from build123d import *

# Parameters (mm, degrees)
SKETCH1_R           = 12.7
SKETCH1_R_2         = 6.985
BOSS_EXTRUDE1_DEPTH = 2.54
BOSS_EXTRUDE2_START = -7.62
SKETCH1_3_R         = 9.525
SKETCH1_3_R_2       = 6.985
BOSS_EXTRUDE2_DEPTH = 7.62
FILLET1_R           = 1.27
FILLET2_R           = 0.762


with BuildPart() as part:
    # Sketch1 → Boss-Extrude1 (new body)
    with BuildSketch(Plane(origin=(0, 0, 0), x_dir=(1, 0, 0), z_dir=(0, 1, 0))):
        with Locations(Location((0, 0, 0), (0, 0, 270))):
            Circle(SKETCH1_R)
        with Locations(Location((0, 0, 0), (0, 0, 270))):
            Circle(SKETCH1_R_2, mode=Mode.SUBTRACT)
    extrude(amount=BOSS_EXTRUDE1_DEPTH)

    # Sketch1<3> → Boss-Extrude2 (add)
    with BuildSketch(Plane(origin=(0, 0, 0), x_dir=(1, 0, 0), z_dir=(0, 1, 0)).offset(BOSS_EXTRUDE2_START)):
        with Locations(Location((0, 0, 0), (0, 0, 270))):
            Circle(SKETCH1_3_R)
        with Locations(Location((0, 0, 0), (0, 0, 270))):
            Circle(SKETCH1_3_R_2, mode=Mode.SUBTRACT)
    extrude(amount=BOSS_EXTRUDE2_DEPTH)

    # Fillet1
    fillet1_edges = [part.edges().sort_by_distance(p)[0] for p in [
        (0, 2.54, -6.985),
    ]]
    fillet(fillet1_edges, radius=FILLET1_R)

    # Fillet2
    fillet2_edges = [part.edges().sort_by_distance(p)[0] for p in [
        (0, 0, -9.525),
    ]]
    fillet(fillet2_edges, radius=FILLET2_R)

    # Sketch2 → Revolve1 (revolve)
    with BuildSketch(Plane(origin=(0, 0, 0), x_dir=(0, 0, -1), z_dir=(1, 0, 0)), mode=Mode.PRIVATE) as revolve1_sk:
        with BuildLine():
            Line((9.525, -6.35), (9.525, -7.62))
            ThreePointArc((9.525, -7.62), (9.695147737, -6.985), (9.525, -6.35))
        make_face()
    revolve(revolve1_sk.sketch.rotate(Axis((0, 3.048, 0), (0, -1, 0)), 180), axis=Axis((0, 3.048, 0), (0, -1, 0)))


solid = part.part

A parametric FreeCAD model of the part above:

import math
import FreeCAD as App
import Part
import Sketcher

V = App.Vector
Q = App.Units.Quantity


def edges_at(feature, points):
    """Names of the edges that pass closest to the given points."""
    edges = feature.Shape.Edges
    near = lambda p: min(range(len(edges)), key=lambda i: edges[i].distToShape(Part.Vertex(*p))[0])
    return sorted({f"Edge{near(p) + 1}" for p in points})

doc = App.newDocument("Part")
body = doc.addObject("PartDesign::Body", "Body")

sketch1 = body.newObject("Sketcher::SketchObject", "Sketch")
sketch1.AttachmentSupport = (doc.getObject("XZ_Plane"), [""])
sketch1.MapMode = "FlatFace"
sketch1.addGeometry(Part.Circle(V(0, 0, 0), V(0, 0, 1), 13), False)
sketch1.addGeometry(Part.Circle(V(0, 0, 0), V(0, 0, 1), 7), False)
sketch1.addConstraint(Sketcher.Constraint("Coincident", 0, 3, -1, 1))
sketch1.addConstraint(Sketcher.Constraint("Coincident", 1, 3, -1, 1))
sketch1.addConstraint(Sketcher.Constraint("Diameter", 0, Q("1 in")))
sketch1.addConstraint(Sketcher.Constraint("Diameter", 1, Q("0.55 in")))
pad1 = body.newObject("PartDesign::Pad", "Pad")
pad1.Profile = sketch1
pad1.Length = Q("0.1 in")
pad1.Reversed = True

sketch2 = body.newObject("Sketcher::SketchObject", "Sketch001")
sketch2.AttachmentSupport = (doc.getObject("XZ_Plane"), [""])
sketch2.MapMode = "FlatFace"
sketch2.AttachmentOffset = App.Placement(V(0, 0, 0.3 * 25.4), App.Rotation())
sketch2.addGeometry(Part.Circle(V(0, 0, 0), V(0, 0, 1), 10), False)
sketch2.addGeometry(Part.Circle(V(0, 0, 0), V(0, 0, 1), 7), False)
sketch2.addConstraint(Sketcher.Constraint("Coincident", 0, 3, -1, 1))
sketch2.addConstraint(Sketcher.Constraint("Coincident", 1, 3, -1, 1))
sketch2.addConstraint(Sketcher.Constraint("Diameter", 0, Q("0.75 in")))
sketch2.addConstraint(Sketcher.Constraint("Diameter", 1, Q("0.55 in")))
pad2 = body.newObject("PartDesign::Pad", "Pad001")
pad2.Profile = sketch2
pad2.Length = Q("0.3 in")
pad2.Reversed = True
doc.recompute()

fillet = body.newObject("PartDesign::Fillet", "Fillet")
fillet.Base = (pad2, edges_at(pad2, [(0, 2.54, -6.985)]))
fillet.Radius = Q("0.05 in")
doc.recompute()

fillet2 = body.newObject("PartDesign::Fillet", "Fillet001")
fillet2.Base = (fillet, edges_at(fillet, [(0, 0, -9.525)]))
fillet2.Radius = Q("0.03 in")

sketch3 = body.newObject("Sketcher::SketchObject", "Sketch002")
sketch3.AttachmentSupport = (doc.getObject("YZ_Plane"), [""])
sketch3.MapMode = "FlatFace"
sketch3.addGeometry(Part.LineSegment(V(-6.3, -9.5, 0), V(-7.6, -9.5, 0)), False)
sketch3.addGeometry(Part.ArcOfCircle(Part.Circle(V(-7, -8.4, 0), V(0, 0, 1), 1.3), math.radians(-120), math.radians(-60)), False)
sketch3.addConstraint(Sketcher.Constraint("Coincident", 0, 1, 1, 2))
sketch3.addConstraint(Sketcher.Constraint("Coincident", 1, 1, 0, 2))
sketch3.addConstraint(Sketcher.Constraint("Horizontal", 0))
sketch3.addConstraint(Sketcher.Constraint("Radius", 1, Q("0.05 in")))
sketch3.addConstraint(Sketcher.Constraint("DistanceX", 0, 2, 0, 1, Q("0.05 in")))
sketch3.addConstraint(Sketcher.Constraint("DistanceX", 1, 1, -1, 1, Q("0.3 in")))
sketch3.addConstraint(Sketcher.Constraint("DistanceY", 0, 1, -1, 1, Q("0.375 in")))
revolution = body.newObject("PartDesign::Revolution", "Revolution")
revolution.Profile = sketch3
revolution.ReferenceAxis = (sketch3, ["H_Axis"])
revolution.Angle = 360

doc.recompute()
